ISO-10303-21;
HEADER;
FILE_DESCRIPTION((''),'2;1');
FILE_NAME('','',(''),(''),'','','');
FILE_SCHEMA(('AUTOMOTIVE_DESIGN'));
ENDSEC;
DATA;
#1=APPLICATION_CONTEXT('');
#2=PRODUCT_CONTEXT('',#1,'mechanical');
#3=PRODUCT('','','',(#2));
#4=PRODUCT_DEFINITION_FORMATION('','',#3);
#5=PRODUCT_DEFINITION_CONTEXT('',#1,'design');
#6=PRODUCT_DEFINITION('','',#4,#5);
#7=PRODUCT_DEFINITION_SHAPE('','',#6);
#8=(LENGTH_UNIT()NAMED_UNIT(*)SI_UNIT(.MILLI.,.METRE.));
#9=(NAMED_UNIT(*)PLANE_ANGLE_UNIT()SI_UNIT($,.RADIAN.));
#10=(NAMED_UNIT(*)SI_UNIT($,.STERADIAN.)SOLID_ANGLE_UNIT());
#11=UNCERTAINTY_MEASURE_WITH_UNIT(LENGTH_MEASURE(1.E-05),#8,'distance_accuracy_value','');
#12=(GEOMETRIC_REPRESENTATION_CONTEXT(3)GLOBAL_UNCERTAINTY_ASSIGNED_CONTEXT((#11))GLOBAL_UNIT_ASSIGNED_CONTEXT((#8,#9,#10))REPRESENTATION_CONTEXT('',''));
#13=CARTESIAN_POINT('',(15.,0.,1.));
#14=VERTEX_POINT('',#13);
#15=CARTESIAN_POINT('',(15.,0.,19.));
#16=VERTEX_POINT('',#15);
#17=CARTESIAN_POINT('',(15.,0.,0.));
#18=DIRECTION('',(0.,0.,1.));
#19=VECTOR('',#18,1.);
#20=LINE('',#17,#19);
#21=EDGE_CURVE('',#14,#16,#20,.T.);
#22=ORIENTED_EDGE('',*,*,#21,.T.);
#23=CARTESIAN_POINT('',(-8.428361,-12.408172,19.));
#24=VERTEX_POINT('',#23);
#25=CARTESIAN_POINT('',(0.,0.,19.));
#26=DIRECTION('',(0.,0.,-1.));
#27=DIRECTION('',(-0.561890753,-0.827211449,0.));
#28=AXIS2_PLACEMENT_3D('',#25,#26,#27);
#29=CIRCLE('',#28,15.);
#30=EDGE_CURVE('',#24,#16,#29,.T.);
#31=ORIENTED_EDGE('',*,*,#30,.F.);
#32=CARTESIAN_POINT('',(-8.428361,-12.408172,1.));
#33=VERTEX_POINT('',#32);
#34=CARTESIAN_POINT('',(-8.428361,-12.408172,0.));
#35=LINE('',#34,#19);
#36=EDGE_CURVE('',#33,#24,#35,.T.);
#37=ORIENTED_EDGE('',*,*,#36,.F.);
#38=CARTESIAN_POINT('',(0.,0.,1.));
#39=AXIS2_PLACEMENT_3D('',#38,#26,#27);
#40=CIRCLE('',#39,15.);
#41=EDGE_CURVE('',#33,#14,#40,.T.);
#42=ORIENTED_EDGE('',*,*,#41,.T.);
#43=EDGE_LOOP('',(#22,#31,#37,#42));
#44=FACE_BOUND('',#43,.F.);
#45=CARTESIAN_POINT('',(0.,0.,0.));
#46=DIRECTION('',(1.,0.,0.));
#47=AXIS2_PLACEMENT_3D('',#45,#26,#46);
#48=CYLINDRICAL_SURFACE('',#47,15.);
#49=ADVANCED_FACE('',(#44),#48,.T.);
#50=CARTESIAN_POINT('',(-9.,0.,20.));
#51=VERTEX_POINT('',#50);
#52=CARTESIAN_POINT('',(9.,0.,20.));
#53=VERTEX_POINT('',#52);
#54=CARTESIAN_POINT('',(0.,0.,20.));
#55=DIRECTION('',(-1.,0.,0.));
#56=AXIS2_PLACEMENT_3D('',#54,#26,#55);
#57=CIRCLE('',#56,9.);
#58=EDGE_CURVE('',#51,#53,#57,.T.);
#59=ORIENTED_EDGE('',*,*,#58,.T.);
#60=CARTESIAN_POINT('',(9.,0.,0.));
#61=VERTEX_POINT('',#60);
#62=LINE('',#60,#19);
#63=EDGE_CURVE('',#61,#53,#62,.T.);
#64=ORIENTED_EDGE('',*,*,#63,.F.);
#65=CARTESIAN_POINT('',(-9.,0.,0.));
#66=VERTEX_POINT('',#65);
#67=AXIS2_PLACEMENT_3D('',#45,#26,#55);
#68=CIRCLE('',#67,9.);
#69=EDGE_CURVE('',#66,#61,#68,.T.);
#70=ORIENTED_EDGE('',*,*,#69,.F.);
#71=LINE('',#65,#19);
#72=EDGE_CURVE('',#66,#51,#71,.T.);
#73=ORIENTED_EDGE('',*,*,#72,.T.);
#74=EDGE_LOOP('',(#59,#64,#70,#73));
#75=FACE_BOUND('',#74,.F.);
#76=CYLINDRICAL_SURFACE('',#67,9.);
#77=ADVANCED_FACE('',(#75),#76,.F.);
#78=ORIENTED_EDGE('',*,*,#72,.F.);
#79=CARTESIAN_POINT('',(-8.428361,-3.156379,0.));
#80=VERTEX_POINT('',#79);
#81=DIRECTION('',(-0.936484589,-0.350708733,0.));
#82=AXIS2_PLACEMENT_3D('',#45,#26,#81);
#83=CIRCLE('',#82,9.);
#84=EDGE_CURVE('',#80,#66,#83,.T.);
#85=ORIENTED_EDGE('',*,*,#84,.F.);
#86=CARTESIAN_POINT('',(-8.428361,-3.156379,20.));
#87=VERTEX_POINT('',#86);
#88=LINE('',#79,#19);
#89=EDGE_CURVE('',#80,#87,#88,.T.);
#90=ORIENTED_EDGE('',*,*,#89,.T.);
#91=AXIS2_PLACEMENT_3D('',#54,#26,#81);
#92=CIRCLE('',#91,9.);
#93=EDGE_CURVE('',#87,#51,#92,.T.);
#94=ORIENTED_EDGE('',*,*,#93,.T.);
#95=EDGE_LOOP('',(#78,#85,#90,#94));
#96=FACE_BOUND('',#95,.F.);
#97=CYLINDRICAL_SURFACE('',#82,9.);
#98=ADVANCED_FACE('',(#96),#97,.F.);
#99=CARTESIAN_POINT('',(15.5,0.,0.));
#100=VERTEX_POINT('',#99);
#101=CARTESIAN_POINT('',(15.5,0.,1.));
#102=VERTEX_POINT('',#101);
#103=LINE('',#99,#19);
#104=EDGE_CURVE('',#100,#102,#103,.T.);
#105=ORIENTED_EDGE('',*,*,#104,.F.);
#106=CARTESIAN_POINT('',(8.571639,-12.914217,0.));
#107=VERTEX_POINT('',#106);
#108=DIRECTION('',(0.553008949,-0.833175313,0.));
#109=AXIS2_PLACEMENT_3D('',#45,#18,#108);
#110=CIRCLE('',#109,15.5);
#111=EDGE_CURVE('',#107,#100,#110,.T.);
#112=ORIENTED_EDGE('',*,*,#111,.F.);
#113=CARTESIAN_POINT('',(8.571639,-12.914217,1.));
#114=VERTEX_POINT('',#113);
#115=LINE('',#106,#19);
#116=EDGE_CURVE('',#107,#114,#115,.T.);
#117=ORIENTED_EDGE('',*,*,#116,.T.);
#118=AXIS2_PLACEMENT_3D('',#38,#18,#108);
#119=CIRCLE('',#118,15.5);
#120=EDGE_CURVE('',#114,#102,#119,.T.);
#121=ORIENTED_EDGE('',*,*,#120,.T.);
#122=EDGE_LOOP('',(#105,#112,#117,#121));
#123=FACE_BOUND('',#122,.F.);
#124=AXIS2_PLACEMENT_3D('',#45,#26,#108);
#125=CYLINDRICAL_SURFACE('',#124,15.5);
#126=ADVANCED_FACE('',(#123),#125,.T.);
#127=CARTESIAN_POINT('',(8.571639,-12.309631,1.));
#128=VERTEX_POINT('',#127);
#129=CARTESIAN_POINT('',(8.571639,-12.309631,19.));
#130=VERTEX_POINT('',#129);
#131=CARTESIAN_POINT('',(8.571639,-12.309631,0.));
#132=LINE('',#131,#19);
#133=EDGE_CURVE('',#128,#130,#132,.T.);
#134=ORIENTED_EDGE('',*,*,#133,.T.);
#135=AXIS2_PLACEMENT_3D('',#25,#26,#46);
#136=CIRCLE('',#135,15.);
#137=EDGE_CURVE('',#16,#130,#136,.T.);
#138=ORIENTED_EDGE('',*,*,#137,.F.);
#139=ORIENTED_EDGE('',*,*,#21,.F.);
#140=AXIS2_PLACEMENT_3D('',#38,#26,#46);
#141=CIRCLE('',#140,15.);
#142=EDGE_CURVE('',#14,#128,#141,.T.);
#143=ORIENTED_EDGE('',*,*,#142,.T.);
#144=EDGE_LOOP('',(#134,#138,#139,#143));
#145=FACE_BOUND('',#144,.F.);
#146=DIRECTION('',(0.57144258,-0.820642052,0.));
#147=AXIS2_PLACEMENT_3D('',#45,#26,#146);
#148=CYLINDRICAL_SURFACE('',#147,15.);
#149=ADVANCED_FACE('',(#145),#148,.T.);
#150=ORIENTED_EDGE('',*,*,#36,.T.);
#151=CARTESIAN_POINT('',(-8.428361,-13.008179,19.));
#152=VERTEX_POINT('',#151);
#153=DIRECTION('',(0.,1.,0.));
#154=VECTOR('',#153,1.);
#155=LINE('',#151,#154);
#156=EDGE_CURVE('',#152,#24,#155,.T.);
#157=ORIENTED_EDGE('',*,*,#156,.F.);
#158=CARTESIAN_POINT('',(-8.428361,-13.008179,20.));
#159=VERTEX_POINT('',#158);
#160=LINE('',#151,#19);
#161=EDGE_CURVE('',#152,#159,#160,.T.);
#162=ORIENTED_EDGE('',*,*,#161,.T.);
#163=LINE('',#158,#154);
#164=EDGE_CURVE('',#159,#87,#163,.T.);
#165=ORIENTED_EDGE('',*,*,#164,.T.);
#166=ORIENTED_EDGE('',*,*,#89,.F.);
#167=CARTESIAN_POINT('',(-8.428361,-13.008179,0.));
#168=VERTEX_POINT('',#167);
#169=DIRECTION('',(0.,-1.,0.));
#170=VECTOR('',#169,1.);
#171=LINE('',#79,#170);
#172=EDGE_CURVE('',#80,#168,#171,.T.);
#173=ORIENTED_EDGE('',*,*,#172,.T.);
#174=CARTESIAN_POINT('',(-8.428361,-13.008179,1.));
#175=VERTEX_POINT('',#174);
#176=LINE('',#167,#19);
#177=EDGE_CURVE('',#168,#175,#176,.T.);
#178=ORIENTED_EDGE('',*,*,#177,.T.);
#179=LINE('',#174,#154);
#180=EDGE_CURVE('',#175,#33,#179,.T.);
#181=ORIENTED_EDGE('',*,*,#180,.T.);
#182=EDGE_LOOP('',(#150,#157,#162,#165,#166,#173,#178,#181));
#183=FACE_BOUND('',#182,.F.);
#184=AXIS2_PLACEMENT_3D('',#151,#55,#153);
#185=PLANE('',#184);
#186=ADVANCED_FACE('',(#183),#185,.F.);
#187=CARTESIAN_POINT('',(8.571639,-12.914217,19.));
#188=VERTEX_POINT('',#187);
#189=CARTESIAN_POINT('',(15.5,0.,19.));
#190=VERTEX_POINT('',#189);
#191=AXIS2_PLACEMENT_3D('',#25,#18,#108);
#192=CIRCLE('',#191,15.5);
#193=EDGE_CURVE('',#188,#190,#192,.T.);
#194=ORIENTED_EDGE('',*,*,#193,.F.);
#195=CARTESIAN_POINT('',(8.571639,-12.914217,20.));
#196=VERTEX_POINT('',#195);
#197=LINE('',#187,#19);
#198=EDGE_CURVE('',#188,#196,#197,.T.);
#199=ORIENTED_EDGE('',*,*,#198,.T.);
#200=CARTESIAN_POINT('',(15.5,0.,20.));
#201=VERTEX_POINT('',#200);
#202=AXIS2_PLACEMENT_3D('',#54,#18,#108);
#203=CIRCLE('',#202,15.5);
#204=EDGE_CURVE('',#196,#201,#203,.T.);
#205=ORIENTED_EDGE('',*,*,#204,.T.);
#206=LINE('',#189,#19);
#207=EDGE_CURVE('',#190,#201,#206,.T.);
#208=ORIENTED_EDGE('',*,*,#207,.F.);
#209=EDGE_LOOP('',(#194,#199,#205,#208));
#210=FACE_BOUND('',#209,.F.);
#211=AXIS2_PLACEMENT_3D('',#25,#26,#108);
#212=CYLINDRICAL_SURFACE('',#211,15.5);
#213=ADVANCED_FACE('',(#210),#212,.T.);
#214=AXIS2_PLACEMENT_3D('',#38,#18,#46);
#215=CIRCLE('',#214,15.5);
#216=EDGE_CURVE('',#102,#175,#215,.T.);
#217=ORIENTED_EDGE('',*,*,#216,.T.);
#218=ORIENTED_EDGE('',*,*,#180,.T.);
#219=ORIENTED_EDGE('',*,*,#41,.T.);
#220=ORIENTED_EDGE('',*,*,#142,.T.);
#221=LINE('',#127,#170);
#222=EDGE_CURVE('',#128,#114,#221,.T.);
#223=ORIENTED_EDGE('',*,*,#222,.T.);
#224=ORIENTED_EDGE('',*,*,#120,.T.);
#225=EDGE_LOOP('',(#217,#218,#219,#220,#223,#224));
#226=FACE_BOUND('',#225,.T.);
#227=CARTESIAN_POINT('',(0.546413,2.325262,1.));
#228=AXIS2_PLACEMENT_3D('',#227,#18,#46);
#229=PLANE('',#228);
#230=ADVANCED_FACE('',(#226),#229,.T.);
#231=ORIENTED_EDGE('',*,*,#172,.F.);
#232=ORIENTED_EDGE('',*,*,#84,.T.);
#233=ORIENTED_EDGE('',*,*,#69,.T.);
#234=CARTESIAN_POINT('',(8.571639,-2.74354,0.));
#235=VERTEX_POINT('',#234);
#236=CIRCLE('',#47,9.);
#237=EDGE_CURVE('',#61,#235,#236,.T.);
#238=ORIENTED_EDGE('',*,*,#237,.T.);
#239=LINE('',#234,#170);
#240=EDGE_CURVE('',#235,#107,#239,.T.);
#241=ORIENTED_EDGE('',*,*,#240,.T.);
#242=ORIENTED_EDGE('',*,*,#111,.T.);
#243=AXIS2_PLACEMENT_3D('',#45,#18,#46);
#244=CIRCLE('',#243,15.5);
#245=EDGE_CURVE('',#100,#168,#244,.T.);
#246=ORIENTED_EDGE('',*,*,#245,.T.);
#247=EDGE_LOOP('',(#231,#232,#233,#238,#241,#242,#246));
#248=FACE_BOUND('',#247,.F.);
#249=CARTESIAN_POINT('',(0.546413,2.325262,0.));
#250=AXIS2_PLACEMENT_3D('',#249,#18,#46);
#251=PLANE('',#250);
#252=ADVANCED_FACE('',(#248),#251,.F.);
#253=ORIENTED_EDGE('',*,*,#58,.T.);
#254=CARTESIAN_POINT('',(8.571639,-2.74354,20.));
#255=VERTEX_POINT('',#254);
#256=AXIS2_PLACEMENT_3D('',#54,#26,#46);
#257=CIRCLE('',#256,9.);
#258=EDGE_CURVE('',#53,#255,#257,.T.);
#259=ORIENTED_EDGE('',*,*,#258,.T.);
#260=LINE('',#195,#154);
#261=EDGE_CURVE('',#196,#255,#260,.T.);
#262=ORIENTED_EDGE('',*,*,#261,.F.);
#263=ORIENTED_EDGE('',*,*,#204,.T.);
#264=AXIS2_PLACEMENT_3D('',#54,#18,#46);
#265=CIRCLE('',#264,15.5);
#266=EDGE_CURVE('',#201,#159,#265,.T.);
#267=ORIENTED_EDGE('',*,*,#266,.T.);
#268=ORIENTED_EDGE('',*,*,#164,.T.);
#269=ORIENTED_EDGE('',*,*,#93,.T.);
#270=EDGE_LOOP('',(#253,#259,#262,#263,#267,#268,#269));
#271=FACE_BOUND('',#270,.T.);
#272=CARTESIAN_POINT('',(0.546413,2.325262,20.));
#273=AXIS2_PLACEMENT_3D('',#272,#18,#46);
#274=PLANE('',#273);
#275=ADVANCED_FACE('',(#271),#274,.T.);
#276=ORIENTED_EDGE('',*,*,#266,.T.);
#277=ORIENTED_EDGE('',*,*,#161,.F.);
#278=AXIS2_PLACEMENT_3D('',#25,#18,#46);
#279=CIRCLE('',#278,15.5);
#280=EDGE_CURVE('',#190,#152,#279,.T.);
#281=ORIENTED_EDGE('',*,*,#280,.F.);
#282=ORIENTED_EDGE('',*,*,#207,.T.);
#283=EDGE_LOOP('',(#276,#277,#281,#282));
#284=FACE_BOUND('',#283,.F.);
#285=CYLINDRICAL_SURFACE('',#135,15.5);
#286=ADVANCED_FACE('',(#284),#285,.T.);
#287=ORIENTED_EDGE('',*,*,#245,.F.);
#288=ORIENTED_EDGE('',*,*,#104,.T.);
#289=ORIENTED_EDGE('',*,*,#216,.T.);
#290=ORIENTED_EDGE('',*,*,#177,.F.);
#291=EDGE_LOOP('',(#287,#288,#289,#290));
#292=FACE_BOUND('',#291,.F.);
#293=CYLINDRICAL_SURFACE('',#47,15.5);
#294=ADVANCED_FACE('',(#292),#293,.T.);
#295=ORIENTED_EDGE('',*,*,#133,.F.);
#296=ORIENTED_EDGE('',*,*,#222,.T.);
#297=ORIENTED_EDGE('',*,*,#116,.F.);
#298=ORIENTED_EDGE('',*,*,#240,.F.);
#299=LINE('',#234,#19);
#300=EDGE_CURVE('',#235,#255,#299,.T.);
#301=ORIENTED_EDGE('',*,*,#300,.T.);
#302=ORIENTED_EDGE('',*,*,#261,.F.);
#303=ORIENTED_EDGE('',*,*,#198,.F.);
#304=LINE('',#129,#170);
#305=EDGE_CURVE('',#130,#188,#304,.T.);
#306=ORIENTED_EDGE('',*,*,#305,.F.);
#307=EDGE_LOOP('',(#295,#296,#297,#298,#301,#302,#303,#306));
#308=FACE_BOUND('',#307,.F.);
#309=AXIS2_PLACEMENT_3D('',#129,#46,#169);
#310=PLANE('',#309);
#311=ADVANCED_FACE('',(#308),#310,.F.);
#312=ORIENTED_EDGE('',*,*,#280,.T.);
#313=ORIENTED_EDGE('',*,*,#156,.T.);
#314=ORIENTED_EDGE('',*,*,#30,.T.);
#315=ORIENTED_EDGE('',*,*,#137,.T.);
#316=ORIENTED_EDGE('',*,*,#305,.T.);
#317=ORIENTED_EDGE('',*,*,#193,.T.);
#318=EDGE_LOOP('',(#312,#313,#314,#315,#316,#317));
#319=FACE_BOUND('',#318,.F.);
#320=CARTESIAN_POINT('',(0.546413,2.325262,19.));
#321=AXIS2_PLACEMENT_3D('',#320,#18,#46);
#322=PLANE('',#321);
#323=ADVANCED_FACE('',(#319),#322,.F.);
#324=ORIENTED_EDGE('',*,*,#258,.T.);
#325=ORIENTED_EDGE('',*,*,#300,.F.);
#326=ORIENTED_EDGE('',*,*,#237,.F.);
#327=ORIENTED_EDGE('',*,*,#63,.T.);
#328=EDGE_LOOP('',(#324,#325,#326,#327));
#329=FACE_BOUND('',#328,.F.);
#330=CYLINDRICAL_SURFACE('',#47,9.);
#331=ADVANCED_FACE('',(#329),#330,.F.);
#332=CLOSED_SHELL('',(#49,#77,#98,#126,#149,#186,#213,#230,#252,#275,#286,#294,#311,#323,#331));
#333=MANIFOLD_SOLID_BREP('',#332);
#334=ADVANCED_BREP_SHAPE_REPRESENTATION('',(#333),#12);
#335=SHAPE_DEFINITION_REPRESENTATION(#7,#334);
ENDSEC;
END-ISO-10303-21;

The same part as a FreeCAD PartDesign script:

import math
import FreeCAD as App
import Part
import Sketcher
Q = App.Units.Quantity

doc = App.newDocument("Part")
body = doc.addObject("PartDesign::Body", "Body")

# Sketch on XY plane
sketch1 = doc.addObject("Sketcher::SketchObject", "Sketch")
body.addObject(sketch1)
sketch1.AttachmentSupport = (doc.XY_Plane, [""])
sketch1.MapMode = "FlatFace"
sketch1.addGeometry([
    Part.ArcOfCircle(Part.Circle(App.Vector(0, 0, 0), App.Vector(0, 0, 1), 9), math.radians(0), math.radians(180)),  # 0
    Part.ArcOfCircle(Part.Circle(App.Vector(0, 0, 0), App.Vector(0, 0, 1), 9), math.radians(-17.75), math.radians(0)),  # 1
    Part.LineSegment(App.Vector(8.6, -2.7, 0), App.Vector(8.6, -12.3, 0)),  # 2
    Part.ArcOfCircle(Part.Circle(App.Vector(0, 0, 0), App.Vector(0, 0, 1), 15), math.radians(-55), math.radians(0)),  # 3
    Part.ArcOfCircle(Part.Circle(App.Vector(0, 0, 0), App.Vector(0, 0, 1), 15), math.radians(0), math.radians(236)),  # 4
    Part.LineSegment(App.Vector(-8.4, -12.4, 0), App.Vector(-8.4, -3.2, 0)),  # 5
    Part.ArcOfCircle(Part.Circle(App.Vector(0, 0, 0), App.Vector(0, 0, 1), 9), math.radians(180), math.radians(201)),  # 6
], False)
sketch1.addConstraint([
    Sketcher.Constraint("Tangent", 0, 1, 1, 2),
    Sketcher.Constraint("Coincident", 1, 1, 2, 1),
    Sketcher.Constraint("Coincident", 2, 2, 3, 1),
    Sketcher.Constraint("Tangent", 3, 2, 4, 1),
    Sketcher.Constraint("Coincident", 4, 2, 5, 1),
    Sketcher.Constraint("Coincident", 5, 2, 6, 2),
    Sketcher.Constraint("Tangent", 6, 1, 0, 2),
    Sketcher.Constraint("Vertical", 2),
    Sketcher.Constraint("Vertical", 5),
    Sketcher.Constraint("Coincident", 0, 3, -1, 1),
    Sketcher.Constraint("Coincident", 3, 3, -1, 1),
    Sketcher.Constraint("Equal", 0, 1),
    Sketcher.Constraint("Equal", 3, 4),
    Sketcher.Constraint("Equal", 1, 6),
    Sketcher.Constraint("PointOnObject", 0, 1, -1),
    Sketcher.Constraint("PointOnObject", 3, 2, -1),
    Sketcher.Constraint("PointOnObject", 6, 1, -1),
    Sketcher.Constraint("Radius", 0, Q("9 mm")),
    Sketcher.Constraint("Radius", 3, Q("15 mm")),
    Sketcher.Constraint("DistanceY", 2, 2, 2, 1, Q("9.566091 mm")),
    Sketcher.Constraint("DistanceY", 5, 1, 5, 2, Q("9.251793 mm")),
])
pad1 = doc.addObject("PartDesign::Pad", "Pad")
body.addObject(pad1)
pad1.Profile = sketch1
pad1.Length = 20

# Sketch on XY plane
sketch2 = doc.addObject("Sketcher::SketchObject", "Sketch001")
body.addObject(sketch2)
sketch2.AttachmentSupport = (doc.XY_Plane, [""])
sketch2.MapMode = "FlatFace"
sketch2.addGeometry([
    Part.ArcOfCircle(Part.Circle(App.Vector(0, 0, 0), App.Vector(0, 0, 1), 15), math.radians(-55), math.radians(0)),  # 0
    Part.LineSegment(App.Vector(8.6, -12.3, 0), App.Vector(8.6, -12.9, 0)),  # 1
    Part.ArcOfCircle(Part.Circle(App.Vector(0, 0, 0), App.Vector(0, 0, 1), 15.5), math.radians(-56), math.radians(0)),  # 2
    Part.ArcOfCircle(Part.Circle(App.Vector(0, 0, 0), App.Vector(0, 0, 1), 15.5), math.radians(0), math.radians(237)),  # 3
    Part.LineSegment(App.Vector(-8.4, -13, 0), App.Vector(-8.4, -12.4, 0)),  # 4
    Part.ArcOfCircle(Part.Circle(App.Vector(0, 0, 0), App.Vector(0, 0, 1), 15), math.radians(0), math.radians(236)),  # 5
], False)
sketch2.addConstraint([
    Sketcher.Constraint("Coincident", 0, 1, 1, 1),
    Sketcher.Constraint("Coincident", 1, 2, 2, 1),
    Sketcher.Constraint("Tangent", 2, 2, 3, 1),
    Sketcher.Constraint("Coincident", 3, 2, 4, 1),
    Sketcher.Constraint("Coincident", 4, 2, 5, 2),
    Sketcher.Constraint("Tangent", 5, 1, 0, 2),
    Sketcher.Constraint("Vertical", 1),
    Sketcher.Constraint("Vertical", 4),
    Sketcher.Constraint("Coincident", 0, 3, -1, 1),
    Sketcher.Constraint("Coincident", 2, 3, -1, 1),
    Sketcher.Constraint("Equal", 2, 3),
    Sketcher.Constraint("Equal", 0, 5),
    Sketcher.Constraint("PointOnObject", 2, 2, -1),
    Sketcher.Constraint("PointOnObject", 5, 1, -1),
    Sketcher.Constraint("Radius", 0, Q("15 mm")),
    Sketcher.Constraint("Radius", 2, Q("15.5 mm")),
    Sketcher.Constraint("DistanceX", 3, 2, 1, 2, Q("17 mm")),
    Sketcher.Constraint("DistanceY", 1, 2, 1, 1, Q("0.604587 mm")),
])
pad2 = doc.addObject("PartDesign::Pad", "Pad001")
body.addObject(pad2)
pad2.Profile = sketch2
pad2.Length = 1

# Sketch on XY plane
sketch3 = doc.addObject("Sketcher::SketchObject", "Sketch002")
body.addObject(sketch3)
sketch3.AttachmentSupport = (doc.XY_Plane, [""])
sketch3.MapMode = "FlatFace"
sketch3.AttachmentOffset = App.Placement(App.Vector(0, 0, 19), App.Rotation())
sketch3.addGeometry([
    Part.ArcOfCircle(Part.Circle(App.Vector(0, 0, 0), App.Vector(0, 0, 1), 15), math.radians(-55), math.radians(0)),  # 0
    Part.LineSegment(App.Vector(8.6, -12.3, 0), App.Vector(8.6, -12.9, 0)),  # 1
    Part.ArcOfCircle(Part.Circle(App.Vector(0, 0, 0), App.Vector(0, 0, 1), 15.5), math.radians(-56), math.radians(0)),  # 2
    Part.ArcOfCircle(Part.Circle(App.Vector(0, 0, 0), App.Vector(0, 0, 1), 15.5), math.radians(0), math.radians(237)),  # 3
    Part.LineSegment(App.Vector(-8.4, -13, 0), App.Vector(-8.4, -12.4, 0)),  # 4
    Part.ArcOfCircle(Part.Circle(App.Vector(0, 0, 0), App.Vector(0, 0, 1), 15), math.radians(0), math.radians(236)),  # 5
], False)
sketch3.addConstraint([
    Sketcher.Constraint("Coincident", 0, 1, 1, 1),
    Sketcher.Constraint("Coincident", 1, 2, 2, 1),
    Sketcher.Constraint("Tangent", 2, 2, 3, 1),
    Sketcher.Constraint("Coincident", 3, 2, 4, 1),
    Sketcher.Constraint("Coincident", 4, 2, 5, 2),
    Sketcher.Constraint("Tangent", 5, 1, 0, 2),
    Sketcher.Constraint("Vertical", 1),
    Sketcher.Constraint("Vertical", 4),
    Sketcher.Constraint("Coincident", 0, 3, -1, 1),
    Sketcher.Constraint("Coincident", 2, 3, -1, 1),
    Sketcher.Constraint("Equal", 2, 3),
    Sketcher.Constraint("Equal", 0, 5),
    Sketcher.Constraint("PointOnObject", 2, 2, -1),
    Sketcher.Constraint("PointOnObject", 5, 1, -1),
    Sketcher.Constraint("Radius", 0, Q("15 mm")),
    Sketcher.Constraint("Radius", 2, Q("15.5 mm")),
    Sketcher.Constraint("DistanceX", 3, 2, 1, 2, Q("17 mm")),
    Sketcher.Constraint("DistanceY", 1, 2, 1, 1, Q("0.604587 mm")),
])
pad3 = doc.addObject("PartDesign::Pad", "Pad002")
body.addObject(pad3)
pad3.Profile = sketch3
pad3.Length = 1

doc.recompute()
